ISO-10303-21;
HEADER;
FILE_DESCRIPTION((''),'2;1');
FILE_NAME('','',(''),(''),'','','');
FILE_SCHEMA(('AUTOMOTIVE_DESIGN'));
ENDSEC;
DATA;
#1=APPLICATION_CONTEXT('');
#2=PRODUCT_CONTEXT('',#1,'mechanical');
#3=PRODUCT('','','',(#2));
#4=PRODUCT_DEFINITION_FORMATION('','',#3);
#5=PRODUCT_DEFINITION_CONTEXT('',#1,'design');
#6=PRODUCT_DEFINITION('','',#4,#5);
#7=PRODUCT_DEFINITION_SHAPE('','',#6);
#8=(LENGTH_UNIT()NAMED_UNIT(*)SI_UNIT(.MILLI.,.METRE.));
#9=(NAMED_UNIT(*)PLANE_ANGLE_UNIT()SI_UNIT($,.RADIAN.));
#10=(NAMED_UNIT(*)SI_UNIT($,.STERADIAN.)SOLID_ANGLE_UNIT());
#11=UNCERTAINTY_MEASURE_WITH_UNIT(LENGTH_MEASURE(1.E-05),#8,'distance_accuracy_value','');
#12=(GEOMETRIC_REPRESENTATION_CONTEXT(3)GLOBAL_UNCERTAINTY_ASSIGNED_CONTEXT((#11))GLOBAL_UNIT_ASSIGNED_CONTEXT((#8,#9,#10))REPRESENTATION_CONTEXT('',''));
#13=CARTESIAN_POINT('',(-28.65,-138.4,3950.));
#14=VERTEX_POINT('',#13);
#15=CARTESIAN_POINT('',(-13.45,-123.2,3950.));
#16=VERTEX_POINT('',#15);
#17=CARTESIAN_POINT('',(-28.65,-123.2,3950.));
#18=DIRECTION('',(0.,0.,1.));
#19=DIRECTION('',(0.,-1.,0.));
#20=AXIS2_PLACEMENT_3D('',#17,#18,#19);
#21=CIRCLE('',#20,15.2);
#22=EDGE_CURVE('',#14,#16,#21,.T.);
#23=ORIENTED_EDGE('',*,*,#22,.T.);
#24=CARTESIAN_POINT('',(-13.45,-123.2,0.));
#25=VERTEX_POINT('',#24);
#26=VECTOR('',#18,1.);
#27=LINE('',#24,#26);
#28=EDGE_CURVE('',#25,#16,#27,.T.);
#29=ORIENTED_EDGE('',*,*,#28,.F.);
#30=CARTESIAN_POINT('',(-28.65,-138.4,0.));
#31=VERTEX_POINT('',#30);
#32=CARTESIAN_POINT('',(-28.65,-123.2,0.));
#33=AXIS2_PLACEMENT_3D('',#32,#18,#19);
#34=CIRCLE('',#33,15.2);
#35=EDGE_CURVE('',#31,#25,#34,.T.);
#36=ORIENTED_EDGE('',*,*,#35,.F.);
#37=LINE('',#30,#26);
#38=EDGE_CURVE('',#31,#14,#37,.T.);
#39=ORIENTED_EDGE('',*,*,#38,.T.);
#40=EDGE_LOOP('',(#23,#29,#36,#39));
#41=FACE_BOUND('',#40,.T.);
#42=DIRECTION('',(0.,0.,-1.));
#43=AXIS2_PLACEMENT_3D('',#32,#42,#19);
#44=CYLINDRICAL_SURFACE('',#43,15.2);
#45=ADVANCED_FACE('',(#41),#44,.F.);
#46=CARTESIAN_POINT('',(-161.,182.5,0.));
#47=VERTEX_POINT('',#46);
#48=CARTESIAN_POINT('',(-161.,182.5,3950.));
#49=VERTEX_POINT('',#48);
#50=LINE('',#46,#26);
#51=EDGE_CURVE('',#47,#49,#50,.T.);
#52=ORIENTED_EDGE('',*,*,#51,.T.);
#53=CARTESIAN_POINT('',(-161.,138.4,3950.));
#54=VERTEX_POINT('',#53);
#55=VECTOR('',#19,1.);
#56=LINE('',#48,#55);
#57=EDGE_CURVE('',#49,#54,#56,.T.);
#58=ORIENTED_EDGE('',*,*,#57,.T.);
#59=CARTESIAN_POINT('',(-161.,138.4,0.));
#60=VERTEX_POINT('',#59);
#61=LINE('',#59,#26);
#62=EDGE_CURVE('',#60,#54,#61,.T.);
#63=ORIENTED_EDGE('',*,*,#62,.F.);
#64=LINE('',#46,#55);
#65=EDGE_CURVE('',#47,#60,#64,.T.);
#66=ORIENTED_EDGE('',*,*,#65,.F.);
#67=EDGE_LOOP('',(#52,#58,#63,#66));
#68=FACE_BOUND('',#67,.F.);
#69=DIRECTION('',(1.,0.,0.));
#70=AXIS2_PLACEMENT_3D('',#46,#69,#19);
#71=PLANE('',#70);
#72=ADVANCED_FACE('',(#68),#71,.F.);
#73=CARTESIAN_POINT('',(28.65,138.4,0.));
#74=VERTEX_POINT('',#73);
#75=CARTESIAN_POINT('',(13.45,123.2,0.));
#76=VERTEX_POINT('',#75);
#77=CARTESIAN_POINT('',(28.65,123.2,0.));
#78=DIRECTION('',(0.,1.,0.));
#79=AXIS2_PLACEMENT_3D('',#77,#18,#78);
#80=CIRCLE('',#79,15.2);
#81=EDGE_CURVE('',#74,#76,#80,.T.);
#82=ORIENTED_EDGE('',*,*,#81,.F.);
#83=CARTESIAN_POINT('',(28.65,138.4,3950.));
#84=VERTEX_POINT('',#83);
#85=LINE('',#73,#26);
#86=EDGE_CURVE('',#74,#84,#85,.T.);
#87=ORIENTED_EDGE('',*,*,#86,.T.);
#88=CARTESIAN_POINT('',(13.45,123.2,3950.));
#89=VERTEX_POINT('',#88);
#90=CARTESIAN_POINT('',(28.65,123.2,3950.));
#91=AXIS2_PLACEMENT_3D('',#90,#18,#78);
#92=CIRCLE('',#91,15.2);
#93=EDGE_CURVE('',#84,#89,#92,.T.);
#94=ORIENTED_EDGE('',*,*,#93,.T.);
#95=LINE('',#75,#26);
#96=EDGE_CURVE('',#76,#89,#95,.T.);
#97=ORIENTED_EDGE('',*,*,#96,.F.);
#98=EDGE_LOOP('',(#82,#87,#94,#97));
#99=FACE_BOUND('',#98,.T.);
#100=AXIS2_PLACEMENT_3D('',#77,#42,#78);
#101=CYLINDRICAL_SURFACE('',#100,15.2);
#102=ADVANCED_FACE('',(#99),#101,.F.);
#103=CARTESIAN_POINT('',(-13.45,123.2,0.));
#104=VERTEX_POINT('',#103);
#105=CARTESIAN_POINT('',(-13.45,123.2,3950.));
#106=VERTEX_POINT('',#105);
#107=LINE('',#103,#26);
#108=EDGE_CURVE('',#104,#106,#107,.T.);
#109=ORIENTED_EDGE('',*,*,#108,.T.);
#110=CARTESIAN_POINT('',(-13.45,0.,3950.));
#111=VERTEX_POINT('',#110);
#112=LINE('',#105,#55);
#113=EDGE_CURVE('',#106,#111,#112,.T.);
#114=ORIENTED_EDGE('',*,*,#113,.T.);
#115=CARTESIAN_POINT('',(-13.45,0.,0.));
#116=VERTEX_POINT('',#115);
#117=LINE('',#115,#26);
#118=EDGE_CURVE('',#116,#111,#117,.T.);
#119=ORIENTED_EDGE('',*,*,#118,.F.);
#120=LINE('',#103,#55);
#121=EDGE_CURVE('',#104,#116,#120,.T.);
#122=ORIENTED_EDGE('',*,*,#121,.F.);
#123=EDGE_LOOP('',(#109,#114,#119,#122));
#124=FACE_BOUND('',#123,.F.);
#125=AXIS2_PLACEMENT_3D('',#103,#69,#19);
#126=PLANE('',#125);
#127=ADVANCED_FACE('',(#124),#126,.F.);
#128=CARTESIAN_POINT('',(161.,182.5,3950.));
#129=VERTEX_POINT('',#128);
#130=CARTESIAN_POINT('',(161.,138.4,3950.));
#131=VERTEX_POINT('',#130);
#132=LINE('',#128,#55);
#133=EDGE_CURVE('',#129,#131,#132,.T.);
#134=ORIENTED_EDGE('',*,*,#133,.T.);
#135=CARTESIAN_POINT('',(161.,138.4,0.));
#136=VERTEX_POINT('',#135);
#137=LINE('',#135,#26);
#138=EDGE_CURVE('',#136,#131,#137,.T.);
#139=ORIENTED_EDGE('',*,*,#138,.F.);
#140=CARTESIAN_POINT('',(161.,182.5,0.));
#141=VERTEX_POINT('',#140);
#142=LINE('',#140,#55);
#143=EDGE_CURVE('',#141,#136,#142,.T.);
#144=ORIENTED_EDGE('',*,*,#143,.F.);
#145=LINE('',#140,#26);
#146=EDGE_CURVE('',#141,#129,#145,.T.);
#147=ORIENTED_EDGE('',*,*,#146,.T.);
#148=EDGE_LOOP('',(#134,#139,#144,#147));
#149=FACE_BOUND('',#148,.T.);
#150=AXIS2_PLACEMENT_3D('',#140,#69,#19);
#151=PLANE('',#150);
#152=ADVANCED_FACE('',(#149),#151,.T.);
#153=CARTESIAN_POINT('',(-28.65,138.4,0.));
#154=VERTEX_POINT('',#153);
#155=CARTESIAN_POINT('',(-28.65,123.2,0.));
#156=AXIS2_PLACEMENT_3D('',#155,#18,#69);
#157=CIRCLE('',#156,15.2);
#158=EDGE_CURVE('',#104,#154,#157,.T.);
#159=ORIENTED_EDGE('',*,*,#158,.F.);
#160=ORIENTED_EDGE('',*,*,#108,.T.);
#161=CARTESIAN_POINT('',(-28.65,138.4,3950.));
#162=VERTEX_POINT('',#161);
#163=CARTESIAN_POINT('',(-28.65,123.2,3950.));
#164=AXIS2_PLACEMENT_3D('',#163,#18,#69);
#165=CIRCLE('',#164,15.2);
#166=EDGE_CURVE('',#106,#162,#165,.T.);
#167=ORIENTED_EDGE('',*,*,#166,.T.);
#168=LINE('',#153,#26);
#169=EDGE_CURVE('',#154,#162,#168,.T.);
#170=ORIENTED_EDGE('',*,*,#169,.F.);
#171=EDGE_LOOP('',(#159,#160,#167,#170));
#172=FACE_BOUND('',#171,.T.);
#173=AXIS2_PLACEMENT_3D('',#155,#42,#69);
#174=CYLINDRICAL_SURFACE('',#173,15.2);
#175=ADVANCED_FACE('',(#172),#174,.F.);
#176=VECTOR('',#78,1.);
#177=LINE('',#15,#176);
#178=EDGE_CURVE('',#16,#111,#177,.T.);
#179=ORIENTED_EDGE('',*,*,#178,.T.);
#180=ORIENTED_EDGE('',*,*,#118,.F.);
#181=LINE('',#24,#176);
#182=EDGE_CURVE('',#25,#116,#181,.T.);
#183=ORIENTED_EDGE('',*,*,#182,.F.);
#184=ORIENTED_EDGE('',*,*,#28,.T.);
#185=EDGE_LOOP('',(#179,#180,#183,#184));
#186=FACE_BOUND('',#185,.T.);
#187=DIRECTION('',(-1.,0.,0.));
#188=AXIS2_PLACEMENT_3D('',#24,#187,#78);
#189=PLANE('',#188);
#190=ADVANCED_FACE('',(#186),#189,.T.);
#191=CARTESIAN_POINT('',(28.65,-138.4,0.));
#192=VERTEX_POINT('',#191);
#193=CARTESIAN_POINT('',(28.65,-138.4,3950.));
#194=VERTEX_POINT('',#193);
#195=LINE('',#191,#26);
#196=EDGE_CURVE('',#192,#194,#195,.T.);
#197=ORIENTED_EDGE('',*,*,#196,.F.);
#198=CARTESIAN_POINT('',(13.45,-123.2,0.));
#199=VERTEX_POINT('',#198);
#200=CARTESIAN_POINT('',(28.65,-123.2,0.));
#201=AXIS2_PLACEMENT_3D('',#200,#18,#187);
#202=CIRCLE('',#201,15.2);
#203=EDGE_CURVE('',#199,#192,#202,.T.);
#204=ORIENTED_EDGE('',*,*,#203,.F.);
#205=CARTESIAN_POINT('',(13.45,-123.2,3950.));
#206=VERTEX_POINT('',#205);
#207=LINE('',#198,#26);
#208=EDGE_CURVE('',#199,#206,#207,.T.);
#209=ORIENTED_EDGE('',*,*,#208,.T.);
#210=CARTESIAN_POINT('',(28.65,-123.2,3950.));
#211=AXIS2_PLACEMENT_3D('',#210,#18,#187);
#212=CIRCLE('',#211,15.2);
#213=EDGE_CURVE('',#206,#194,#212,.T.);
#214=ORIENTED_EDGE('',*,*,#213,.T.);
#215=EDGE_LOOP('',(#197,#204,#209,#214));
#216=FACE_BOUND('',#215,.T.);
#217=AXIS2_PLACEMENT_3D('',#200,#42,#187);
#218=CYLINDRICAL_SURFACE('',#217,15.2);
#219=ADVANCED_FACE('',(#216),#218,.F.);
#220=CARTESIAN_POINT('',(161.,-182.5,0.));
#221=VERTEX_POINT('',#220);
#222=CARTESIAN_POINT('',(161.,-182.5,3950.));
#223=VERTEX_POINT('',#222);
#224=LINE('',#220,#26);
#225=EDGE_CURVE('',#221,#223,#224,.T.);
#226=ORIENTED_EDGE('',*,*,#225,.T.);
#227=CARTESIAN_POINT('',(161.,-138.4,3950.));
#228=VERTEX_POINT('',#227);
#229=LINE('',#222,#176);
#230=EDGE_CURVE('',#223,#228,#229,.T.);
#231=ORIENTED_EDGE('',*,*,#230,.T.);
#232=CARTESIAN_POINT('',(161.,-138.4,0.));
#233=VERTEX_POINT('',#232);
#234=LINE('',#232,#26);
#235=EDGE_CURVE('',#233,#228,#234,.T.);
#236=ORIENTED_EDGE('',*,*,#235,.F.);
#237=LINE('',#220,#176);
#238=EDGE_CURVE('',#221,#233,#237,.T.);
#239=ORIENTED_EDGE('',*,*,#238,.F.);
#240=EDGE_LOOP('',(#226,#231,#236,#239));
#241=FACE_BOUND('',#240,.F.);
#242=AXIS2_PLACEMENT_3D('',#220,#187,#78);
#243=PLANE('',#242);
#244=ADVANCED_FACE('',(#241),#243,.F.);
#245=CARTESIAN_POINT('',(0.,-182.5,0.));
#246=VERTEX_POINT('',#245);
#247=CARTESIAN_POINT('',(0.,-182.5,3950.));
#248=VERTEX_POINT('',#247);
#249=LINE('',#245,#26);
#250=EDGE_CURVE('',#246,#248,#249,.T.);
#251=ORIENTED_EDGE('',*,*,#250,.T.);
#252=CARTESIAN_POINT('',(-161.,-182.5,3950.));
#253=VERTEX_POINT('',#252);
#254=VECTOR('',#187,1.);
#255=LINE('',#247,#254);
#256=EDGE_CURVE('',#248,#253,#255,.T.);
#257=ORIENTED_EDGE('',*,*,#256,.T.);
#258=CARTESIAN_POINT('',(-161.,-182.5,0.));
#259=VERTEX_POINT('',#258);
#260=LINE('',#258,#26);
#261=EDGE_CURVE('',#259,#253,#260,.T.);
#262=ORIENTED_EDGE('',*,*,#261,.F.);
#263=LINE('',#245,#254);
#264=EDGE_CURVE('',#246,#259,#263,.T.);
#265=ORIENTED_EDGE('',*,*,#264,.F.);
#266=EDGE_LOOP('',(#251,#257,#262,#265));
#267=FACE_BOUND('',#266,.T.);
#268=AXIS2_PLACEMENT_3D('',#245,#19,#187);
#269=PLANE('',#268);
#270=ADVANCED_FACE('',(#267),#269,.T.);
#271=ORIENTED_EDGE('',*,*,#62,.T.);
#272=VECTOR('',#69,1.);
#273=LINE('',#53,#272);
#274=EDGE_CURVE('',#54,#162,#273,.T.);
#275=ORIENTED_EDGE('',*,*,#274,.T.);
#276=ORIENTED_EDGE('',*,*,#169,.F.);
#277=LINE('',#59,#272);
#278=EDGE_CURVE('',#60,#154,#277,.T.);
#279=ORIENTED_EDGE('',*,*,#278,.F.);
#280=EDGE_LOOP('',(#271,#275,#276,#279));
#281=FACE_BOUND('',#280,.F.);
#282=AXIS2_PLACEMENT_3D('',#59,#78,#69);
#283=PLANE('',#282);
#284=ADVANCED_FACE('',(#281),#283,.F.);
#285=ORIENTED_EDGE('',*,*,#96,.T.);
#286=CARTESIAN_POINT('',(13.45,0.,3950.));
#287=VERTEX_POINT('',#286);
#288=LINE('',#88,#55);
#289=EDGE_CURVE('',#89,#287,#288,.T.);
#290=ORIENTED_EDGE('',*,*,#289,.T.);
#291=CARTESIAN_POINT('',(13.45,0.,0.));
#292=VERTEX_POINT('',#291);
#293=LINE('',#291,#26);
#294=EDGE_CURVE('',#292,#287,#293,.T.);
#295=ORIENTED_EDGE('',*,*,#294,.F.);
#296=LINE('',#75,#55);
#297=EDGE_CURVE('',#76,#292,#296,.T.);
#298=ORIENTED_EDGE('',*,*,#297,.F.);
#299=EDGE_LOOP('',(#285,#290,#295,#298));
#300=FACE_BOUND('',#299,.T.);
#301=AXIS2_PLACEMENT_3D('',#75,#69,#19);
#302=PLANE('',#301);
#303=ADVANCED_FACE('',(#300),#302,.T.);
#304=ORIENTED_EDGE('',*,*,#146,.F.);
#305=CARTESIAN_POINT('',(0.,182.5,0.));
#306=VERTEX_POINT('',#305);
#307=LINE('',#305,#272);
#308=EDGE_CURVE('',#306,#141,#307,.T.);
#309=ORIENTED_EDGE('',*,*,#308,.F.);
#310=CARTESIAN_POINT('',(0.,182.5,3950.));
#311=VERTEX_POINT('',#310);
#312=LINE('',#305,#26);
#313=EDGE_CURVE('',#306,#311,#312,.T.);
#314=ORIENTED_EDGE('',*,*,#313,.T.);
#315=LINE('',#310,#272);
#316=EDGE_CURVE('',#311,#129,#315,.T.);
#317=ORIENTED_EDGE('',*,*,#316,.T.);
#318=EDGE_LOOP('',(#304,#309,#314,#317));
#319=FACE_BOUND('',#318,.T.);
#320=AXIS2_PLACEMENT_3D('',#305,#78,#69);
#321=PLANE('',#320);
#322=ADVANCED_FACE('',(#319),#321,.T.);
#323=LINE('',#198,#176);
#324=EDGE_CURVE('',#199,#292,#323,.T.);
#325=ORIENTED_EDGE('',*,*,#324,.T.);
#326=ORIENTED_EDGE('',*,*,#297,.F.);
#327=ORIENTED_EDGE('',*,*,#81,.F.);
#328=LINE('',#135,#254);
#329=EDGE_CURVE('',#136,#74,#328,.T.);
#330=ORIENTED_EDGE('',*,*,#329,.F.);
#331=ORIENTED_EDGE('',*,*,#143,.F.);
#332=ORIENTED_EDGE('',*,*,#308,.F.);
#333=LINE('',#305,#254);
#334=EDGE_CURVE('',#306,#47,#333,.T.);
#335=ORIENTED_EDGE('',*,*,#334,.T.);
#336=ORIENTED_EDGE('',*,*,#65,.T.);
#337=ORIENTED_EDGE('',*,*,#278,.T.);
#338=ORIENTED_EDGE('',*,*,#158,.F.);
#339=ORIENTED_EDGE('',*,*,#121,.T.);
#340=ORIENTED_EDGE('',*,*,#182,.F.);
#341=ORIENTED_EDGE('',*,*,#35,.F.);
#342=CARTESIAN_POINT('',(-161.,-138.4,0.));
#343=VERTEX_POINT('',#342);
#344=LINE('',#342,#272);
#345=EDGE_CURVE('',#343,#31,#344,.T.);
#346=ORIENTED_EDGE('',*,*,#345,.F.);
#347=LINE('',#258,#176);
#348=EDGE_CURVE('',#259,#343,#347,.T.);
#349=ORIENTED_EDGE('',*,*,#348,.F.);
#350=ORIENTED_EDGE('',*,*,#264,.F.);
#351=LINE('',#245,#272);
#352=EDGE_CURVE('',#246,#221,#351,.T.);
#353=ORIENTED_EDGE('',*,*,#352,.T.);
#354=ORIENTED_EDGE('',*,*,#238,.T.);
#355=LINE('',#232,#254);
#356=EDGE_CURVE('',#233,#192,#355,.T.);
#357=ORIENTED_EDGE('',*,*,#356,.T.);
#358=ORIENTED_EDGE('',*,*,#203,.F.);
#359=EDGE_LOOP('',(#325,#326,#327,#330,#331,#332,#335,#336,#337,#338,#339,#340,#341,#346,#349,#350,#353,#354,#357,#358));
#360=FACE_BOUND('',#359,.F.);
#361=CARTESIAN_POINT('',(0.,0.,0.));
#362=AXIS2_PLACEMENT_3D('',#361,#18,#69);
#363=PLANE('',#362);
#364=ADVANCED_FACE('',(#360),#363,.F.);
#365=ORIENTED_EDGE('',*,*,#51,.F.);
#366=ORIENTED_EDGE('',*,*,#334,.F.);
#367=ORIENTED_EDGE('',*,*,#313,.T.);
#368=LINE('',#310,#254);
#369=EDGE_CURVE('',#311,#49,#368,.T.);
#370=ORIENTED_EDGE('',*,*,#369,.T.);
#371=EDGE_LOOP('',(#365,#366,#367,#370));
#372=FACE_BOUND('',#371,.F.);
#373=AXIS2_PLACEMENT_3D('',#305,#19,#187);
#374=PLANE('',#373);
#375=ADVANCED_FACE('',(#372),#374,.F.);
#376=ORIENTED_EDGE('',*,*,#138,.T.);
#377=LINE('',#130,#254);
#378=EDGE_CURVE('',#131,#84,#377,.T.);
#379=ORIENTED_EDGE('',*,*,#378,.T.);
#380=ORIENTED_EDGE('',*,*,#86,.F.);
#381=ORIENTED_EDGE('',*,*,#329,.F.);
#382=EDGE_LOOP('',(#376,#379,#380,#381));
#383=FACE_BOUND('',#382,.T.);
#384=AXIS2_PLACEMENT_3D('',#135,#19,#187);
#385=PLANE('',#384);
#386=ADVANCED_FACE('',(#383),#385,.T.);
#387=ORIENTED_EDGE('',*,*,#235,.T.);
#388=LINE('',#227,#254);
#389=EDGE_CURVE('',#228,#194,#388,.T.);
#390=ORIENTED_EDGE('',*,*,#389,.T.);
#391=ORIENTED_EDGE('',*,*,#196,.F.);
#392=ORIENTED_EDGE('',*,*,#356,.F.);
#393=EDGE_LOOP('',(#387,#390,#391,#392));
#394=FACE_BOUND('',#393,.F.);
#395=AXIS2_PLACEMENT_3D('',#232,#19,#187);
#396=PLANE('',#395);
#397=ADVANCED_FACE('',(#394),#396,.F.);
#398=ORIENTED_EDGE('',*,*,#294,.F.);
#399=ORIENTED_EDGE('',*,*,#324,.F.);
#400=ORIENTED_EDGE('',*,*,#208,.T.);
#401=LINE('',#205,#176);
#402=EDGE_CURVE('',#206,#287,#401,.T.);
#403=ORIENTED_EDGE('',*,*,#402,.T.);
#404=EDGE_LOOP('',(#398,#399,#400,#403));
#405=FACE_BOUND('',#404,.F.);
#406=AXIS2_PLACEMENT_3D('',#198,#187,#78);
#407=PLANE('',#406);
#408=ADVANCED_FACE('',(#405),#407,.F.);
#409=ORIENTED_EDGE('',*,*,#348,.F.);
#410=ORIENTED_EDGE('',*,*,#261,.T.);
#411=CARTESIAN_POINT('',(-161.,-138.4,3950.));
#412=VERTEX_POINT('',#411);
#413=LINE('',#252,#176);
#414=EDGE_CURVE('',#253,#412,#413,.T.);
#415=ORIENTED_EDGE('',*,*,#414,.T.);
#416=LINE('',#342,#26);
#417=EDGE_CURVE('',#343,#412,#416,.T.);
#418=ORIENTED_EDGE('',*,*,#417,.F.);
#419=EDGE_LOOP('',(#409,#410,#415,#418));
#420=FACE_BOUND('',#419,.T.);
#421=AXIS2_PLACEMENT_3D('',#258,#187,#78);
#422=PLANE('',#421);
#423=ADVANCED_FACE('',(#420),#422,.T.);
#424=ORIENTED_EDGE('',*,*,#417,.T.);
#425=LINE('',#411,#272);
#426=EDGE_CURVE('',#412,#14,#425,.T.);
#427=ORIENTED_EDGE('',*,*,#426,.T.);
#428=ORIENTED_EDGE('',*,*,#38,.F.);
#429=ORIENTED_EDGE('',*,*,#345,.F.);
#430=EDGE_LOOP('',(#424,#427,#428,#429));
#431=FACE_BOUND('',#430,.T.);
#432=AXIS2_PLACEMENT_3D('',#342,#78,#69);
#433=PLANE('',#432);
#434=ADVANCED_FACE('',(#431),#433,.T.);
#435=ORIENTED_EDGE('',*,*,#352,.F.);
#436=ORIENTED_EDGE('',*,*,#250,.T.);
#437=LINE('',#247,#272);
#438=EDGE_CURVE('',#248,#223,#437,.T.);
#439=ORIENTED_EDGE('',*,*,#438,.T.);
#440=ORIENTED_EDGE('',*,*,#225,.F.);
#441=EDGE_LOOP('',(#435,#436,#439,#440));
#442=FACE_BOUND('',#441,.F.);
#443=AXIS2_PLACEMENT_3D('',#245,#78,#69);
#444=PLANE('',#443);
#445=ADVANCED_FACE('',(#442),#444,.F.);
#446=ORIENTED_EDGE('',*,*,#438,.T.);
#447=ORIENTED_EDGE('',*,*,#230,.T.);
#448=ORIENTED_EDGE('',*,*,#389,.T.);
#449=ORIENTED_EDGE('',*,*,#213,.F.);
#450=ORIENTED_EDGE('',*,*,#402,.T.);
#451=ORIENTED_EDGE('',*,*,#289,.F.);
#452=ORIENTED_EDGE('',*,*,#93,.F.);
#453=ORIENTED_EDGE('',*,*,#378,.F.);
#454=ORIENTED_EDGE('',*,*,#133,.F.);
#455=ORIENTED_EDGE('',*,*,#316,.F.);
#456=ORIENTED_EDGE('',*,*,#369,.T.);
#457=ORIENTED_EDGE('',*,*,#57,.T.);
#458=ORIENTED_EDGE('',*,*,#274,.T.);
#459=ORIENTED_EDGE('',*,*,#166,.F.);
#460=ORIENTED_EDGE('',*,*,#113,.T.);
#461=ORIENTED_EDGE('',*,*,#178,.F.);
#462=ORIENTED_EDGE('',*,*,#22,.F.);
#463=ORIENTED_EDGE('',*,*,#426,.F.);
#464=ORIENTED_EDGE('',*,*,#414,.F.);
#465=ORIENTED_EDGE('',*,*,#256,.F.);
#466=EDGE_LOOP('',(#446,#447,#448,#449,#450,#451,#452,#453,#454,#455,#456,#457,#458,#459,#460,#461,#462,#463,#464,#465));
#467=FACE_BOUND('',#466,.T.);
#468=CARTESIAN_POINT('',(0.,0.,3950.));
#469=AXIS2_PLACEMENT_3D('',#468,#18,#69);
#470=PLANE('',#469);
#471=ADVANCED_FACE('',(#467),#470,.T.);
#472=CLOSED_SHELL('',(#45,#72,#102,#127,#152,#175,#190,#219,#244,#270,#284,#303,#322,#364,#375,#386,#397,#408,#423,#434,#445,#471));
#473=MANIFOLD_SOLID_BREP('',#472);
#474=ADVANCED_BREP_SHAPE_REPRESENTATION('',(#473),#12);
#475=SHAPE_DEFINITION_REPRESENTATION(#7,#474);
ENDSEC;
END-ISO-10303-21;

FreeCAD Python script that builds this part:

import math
import FreeCAD as App
import Part
import Sketcher

V = App.Vector

doc = App.newDocument("Part")
body = doc.addObject("PartDesign::Body", "Body")

# Sketch on XY plane
sketch1 = body.newObject("Sketcher::SketchObject", "Sketch")
sketch1.AttachmentSupport = (doc.getObject("XY_Plane"), [""])
sketch1.MapMode = "FlatFace"
sketch1.addGeometry([
    Part.LineSegment(V(-161, -138, 0), V(-161, -182, 0)),  # 0
    Part.LineSegment(V(-161, -182, 0), V(161, -182, 0)),  # 1
    Part.LineSegment(V(161, -182, 0), V(161, -138, 0)),  # 2
    Part.LineSegment(V(161, -138, 0), V(29, -138, 0)),  # 3
    Part.ArcOfCircle(Part.Circle(V(29, -123, 0), V(0, 0, 1), 15), math.radians(180), math.radians(270)),  # 4
    Part.LineSegment(V(13, -123, 0), V(13, 123, 0)),  # 5
    Part.ArcOfCircle(Part.Circle(V(29, 123, 0), V(0, 0, 1), 15), math.radians(90), math.radians(180)),  # 6
    Part.LineSegment(V(29, 138, 0), V(161, 138, 0)),  # 7
    Part.LineSegment(V(161, 138, 0), V(161, 182, 0)),  # 8
    Part.LineSegment(V(161, 182, 0), V(-161, 182, 0)),  # 9
    Part.LineSegment(V(-161, 182, 0), V(-161, 138, 0)),  # 10
    Part.LineSegment(V(-161, 138, 0), V(-29, 138, 0)),  # 11
    Part.ArcOfCircle(Part.Circle(V(-29, 123, 0), V(0, 0, 1), 15), math.radians(0), math.radians(90)),  # 12
    Part.LineSegment(V(-13, 123, 0), V(-13, -123, 0)),  # 13
    Part.ArcOfCircle(Part.Circle(V(-29, -123, 0), V(0, 0, 1), 15), math.radians(-90), math.radians(0)),  # 14
    Part.LineSegment(V(-29, -138, 0), V(-161, -138, 0)),  # 15
], False)
sketch1.addConstraint([
    Sketcher.Constraint("Coincident", 0, 2, 1, 1),
    Sketcher.Constraint("Coincident", 1, 2, 2, 1),
    Sketcher.Constraint("Coincident", 2, 2, 3, 1),
    Sketcher.Constraint("Tangent", 3, 2, 4, 2),
    Sketcher.Constraint("Tangent", 4, 1, 5, 1),
    Sketcher.Constraint("Tangent", 5, 2, 6, 2),
    Sketcher.Constraint("Tangent", 6, 1, 7, 1),
    Sketcher.Constraint("Coincident", 7, 2, 8, 1),
    Sketcher.Constraint("Coincident", 8, 2, 9, 1),
    Sketcher.Constraint("Coincident", 9, 2, 10, 1),
    Sketcher.Constraint("Coincident", 10, 2, 11, 1),
    Sketcher.Constraint("Tangent", 11, 2, 12, 2),
    Sketcher.Constraint("Tangent", 12, 1, 13, 1),
    Sketcher.Constraint("Tangent", 13, 2, 14, 2),
    Sketcher.Constraint("Tangent", 14, 1, 15, 1),
    Sketcher.Constraint("Coincident", 15, 2, 0, 1),
    Sketcher.Constraint("Vertical", 0),
    Sketcher.Constraint("Horizontal", 1),
    Sketcher.Constraint("Vertical", 2),
    Sketcher.Constraint("Horizontal", 3),
    Sketcher.Constraint("Vertical", 5),
    Sketcher.Constraint("Horizontal", 7),
    Sketcher.Constraint("Vertical", 8),
    Sketcher.Constraint("Horizontal", 9),
    Sketcher.Constraint("Vertical", 10),
    Sketcher.Constraint("Horizontal", 11),
    Sketcher.Constraint("Vertical", 13),
    Sketcher.Constraint("Horizontal", 15),
    Sketcher.Constraint("Equal", 4, 6),
    Sketcher.Constraint("Equal", 6, 12),
    Sketcher.Constraint("Equal", 12, 14),
    Sketcher.Constraint("Symmetric", 4, 3, 12, 3, -1, 1),
    Sketcher.Constraint("Symmetric", 0, 2, 8, 2, -1, 1),
    Sketcher.Constraint("Symmetric", 7, 2, 10, 2, -2),
    Sketcher.Constraint("Symmetric", 2, 2, 15, 2, -2),
    Sketcher.Constraint("Radius", 4, 15.2),
    Sketcher.Constraint("DistanceY", 0, 2, 0, 1, 44.1),
    Sketcher.Constraint("DistanceX", 0, 2, -1, 1, 161.0),
    Sketcher.Constraint("DistanceY", 0, 2, -1, 1, 182.5),
    Sketcher.Constraint("DistanceX", -1, 1, 4, 1, 13.45),
])
pad1 = body.newObject("PartDesign::Pad", "Pad")
pad1.Profile = sketch1
pad1.Length = 3950

doc.recompute()
